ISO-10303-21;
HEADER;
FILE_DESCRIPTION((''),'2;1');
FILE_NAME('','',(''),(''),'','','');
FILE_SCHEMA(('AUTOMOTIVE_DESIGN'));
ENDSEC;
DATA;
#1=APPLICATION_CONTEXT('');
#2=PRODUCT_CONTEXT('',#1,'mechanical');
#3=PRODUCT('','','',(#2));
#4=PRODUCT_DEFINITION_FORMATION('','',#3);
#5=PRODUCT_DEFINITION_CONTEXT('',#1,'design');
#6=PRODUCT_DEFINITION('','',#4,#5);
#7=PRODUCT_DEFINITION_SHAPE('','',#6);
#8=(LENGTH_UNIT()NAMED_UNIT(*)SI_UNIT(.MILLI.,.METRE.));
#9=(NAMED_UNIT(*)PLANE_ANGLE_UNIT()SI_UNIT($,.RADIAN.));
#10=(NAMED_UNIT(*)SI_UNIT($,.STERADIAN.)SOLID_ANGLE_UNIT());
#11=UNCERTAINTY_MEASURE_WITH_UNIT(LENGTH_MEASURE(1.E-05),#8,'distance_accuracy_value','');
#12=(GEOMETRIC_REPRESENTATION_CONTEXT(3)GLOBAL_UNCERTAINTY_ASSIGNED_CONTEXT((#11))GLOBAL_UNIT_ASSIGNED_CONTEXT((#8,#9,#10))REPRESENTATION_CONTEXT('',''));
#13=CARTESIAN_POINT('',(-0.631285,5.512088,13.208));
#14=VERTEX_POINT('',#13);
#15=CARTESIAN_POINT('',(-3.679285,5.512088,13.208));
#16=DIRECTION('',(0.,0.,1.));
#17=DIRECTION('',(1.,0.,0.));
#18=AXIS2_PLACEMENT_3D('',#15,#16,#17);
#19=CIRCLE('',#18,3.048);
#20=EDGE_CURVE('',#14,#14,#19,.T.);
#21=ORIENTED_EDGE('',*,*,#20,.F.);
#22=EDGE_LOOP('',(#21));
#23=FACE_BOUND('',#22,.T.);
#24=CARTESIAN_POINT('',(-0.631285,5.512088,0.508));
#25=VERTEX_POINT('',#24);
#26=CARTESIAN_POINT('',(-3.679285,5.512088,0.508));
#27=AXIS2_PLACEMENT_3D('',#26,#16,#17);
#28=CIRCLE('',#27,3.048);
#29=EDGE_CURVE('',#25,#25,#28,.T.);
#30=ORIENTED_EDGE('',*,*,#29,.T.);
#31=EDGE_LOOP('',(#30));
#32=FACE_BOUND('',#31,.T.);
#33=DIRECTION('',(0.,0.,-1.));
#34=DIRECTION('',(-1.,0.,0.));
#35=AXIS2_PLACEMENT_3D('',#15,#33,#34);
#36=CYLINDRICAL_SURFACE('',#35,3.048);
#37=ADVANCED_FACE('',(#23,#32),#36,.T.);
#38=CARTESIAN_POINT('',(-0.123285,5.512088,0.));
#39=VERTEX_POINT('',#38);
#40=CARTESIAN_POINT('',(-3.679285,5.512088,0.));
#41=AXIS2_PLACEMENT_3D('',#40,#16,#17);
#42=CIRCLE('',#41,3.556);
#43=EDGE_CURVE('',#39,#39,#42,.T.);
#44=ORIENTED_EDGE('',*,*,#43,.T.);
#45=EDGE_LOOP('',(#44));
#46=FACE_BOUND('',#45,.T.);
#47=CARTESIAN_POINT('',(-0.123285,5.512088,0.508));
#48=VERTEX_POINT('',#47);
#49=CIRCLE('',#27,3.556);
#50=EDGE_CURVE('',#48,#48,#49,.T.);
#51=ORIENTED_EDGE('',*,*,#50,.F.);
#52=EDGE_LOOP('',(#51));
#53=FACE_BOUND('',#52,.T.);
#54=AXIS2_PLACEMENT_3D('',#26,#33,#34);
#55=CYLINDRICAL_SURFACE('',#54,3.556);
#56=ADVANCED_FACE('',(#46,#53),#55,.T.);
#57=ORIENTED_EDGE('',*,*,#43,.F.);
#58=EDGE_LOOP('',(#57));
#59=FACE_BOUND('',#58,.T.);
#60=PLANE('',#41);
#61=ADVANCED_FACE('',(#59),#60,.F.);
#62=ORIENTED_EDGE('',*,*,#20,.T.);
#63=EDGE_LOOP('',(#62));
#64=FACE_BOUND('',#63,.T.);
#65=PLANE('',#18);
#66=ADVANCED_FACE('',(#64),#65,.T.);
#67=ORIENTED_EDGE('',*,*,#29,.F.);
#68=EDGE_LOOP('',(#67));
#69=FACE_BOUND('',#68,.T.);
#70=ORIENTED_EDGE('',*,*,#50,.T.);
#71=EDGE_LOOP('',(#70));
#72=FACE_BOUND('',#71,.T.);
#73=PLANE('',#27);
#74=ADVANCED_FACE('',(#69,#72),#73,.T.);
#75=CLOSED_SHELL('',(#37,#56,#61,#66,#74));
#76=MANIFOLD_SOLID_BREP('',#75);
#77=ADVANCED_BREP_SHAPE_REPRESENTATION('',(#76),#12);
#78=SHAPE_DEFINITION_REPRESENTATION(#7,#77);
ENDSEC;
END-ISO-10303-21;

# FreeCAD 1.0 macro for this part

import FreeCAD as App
import Part
import Sketcher
from FreeCAD import Vector
Q = App.Units.Quantity

doc = App.newDocument("Part")
body = doc.addObject("PartDesign::Body", "Body")

sketch1 = body.newObject("Sketcher::SketchObject", "Sketch")
sketch1.AttachmentSupport = (doc.getObject("XY_Plane"), [""])
sketch1.MapMode = "FlatFace"
sketch1.addGeometry(Part.Circle(Vector(-3.7, 5.5, 0), Vector(0, 0, 1), 3.6), False)
sketch1.addConstraint([
    Sketcher.Constraint("Diameter", 0, Q("0.28 in")),
    Sketcher.Constraint("DistanceY", -1, 1, 0, 3, Q("5.512088 mm")),
    Sketcher.Constraint("DistanceX", 0, 3, -1, 1, Q("3.679285 mm")),
])
pad1 = body.newObject("PartDesign::Pad", "Pad")
pad1.Profile = sketch1
pad1.Length = Q("0.02 in")

sketch2 = body.newObject("Sketcher::SketchObject", "Sketch001")
sketch2.AttachmentSupport = (doc.getObject("XY_Plane"), [""])
sketch2.MapMode = "FlatFace"
sketch2.AttachmentOffset = App.Placement(Vector(0, 0, 0.02 * 25.4), App.Rotation())
sketch2.addGeometry(Part.Circle(Vector(-3.7, 5.5, 0), Vector(0, 0, 1), 3), False)
sketch2.addConstraint([
    Sketcher.Constraint("Diameter", 0, Q("0.24 in")),
    Sketcher.Constraint("DistanceY", -1, 1, 0, 3, Q("5.512088 mm")),
    Sketcher.Constraint("DistanceX", 0, 3, -1, 1, Q("3.679285 mm")),
])
pad2 = body.newObject("PartDesign::Pad", "Pad001")
pad2.Profile = sketch2
pad2.Length = Q("0.5 in")

doc.recompute()
